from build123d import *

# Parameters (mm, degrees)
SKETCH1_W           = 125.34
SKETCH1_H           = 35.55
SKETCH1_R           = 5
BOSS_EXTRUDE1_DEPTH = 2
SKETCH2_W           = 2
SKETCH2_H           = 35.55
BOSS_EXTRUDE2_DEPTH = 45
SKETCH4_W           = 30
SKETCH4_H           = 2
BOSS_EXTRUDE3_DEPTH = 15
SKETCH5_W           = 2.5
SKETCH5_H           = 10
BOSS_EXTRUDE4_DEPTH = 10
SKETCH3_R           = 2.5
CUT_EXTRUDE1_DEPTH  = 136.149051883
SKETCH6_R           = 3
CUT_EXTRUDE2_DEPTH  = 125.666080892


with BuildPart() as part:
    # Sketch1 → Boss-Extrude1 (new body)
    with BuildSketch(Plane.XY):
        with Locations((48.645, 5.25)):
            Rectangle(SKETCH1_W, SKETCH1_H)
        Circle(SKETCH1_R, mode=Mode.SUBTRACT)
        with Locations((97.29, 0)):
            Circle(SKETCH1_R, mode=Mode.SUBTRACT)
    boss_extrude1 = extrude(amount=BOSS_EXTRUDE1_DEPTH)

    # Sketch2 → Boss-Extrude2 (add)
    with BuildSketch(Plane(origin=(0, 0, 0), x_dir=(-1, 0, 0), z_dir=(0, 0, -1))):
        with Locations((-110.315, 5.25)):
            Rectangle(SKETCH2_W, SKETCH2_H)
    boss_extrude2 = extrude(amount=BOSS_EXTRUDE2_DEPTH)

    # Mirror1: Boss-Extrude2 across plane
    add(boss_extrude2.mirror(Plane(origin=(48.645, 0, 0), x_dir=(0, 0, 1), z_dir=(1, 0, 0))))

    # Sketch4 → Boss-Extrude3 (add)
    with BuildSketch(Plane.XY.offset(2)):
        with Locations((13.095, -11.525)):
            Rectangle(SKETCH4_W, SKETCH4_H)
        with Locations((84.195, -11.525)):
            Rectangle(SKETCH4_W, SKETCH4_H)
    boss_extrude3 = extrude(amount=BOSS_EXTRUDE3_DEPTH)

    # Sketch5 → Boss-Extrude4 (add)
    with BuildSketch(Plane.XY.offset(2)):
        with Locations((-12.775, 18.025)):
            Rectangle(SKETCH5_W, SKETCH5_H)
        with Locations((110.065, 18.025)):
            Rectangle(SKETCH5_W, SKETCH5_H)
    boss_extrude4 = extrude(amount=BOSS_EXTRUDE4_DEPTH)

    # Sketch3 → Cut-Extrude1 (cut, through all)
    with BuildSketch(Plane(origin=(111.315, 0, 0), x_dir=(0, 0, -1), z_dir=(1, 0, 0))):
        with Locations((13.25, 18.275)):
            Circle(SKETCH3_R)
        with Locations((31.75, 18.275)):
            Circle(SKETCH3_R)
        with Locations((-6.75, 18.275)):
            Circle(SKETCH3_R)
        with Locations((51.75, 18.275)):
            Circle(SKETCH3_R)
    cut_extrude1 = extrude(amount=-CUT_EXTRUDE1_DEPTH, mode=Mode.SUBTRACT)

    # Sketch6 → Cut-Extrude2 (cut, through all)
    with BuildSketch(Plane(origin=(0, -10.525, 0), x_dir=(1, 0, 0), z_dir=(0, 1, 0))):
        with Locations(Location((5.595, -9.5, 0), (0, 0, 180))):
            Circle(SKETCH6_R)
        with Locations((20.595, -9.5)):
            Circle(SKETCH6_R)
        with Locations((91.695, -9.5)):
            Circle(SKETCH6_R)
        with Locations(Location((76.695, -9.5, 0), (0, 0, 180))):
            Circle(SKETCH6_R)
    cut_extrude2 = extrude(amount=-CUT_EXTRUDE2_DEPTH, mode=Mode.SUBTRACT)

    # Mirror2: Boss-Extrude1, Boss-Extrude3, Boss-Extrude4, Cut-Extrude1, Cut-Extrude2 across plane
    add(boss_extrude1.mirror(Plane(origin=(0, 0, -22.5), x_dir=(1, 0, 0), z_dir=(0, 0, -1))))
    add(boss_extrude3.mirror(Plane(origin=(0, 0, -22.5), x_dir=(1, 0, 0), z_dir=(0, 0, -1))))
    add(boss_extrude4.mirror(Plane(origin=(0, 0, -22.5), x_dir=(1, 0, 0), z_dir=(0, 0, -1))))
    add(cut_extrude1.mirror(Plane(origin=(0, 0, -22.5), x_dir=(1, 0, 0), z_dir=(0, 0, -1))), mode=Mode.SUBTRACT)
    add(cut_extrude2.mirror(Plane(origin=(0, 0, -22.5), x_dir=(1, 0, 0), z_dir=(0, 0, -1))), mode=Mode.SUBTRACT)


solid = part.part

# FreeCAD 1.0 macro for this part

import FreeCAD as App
import Part
import Sketcher
from FreeCAD import Vector
Q = App.Units.Quantity

doc = App.newDocument("Part")
params = doc.addObject("Spreadsheet::Sheet", "Params")
for row, (alias, value) in enumerate([
    ("sketch1_diameter", "10 mm"),
    ("sketch1_width", "125.34 mm"),
    ("sketch1_height", "35.55 mm"),
    ("pad1_length", "2 mm"),
    ("sketch2_width", "2 mm"),
    ("sketch2_height", "35.55 mm"),
    ("pad2_length", "45 mm"),
    ("sketch3_width", "30 mm"),
    ("sketch3_height", "2 mm"),
    ("pad3_length", "15 mm"),
    ("sketch4_height", "10 mm"),
    ("sketch4_width", "2.5 mm"),
    ("pad4_length", "10 mm"),
    ("sketch5_diameter", "5 mm"),
    ("sketch6_diameter", "6 mm"),
], start=1):
    params.set(f"A{row}", alias)
    params.set(f"B{row}", "=" + value)
    params.setAlias(f"B{row}", alias)

body = doc.addObject("PartDesign::Body", "Body")

# Sketch on XY plane
sketch1 = body.newObject("Sketcher::SketchObject", "Sketch")
sketch1.AttachmentSupport = (doc.getObject("XY_Plane"), [""])
sketch1.MapMode = "FlatFace"
sketch1.addGeometry(Part.LineSegment(Vector(-14, 23, 0), Vector(-14, -13, 0)), False)
sketch1.addGeometry(Part.LineSegment(Vector(-14, -13, 0), Vector(111, -13, 0)), False)
sketch1.addGeometry(Part.LineSegment(Vector(111, -13, 0), Vector(111, 23, 0)), False)
sketch1.addGeometry(Part.LineSegment(Vector(111, 23, 0), Vector(-14, 23, 0)), False)
sketch1.addGeometry(Part.Circle(Vector(0, 0, 0), Vector(0, 0, 1), 5), False)
sketch1.addGeometry(Part.Circle(Vector(97, 0, 0), Vector(0, 0, 1), 5), False)
sketch1.addConstraint(Sketcher.Constraint("Coincident", 0, 2, 1, 1))
sketch1.addConstraint(Sketcher.Constraint("Coincident", 1, 2, 2, 1))
sketch1.addConstraint(Sketcher.Constraint("Coincident", 2, 2, 3, 1))
sketch1.addConstraint(Sketcher.Constraint("Coincident", 3, 2, 0, 1))
sketch1.addConstraint(Sketcher.Constraint("Vertical", 0))
sketch1.addConstraint(Sketcher.Constraint("Horizontal", 1))
sketch1.addConstraint(Sketcher.Constraint("Vertical", 2))
sketch1.addConstraint(Sketcher.Constraint("Horizontal", 3))
sketch1.addConstraint(Sketcher.Constraint("Coincident", 4, 3, -1, 1))
sketch1.addConstraint(Sketcher.Constraint("Equal", 4, 5))
sketch1.addConstraint(Sketcher.Constraint("PointOnObject", 5, 3, -1))
sketch1.addConstraint(Sketcher.Constraint("Diameter", 4, Q("10 mm")))
sketch1.addConstraint(Sketcher.Constraint("DistanceX", 1, 1, 1, 2, Q("125.34 mm")))
sketch1.addConstraint(Sketcher.Constraint("DistanceY", 0, 2, 0, 1, Q("35.55 mm")))
sketch1.addConstraint(Sketcher.Constraint("DistanceX", -1, 1, 5, 3, Q("97.29 mm")))
sketch1.addConstraint(Sketcher.Constraint("DistanceX", 0, 2, -1, 1, Q("14.025 mm")))
sketch1.addConstraint(Sketcher.Constraint("DistanceY", 0, 2, -1, 1, Q("12.525 mm")))
sketch1.setExpression("Constraints[11]", "Params.sketch1_diameter")
sketch1.setExpression("Constraints[12]", "Params.sketch1_width")
sketch1.setExpression("Constraints[13]", "Params.sketch1_height")
pad1 = body.newObject("PartDesign::Pad", "Pad")
pad1.Profile = sketch1
pad1.setExpression("Length", "Params.pad1_length")

# Sketch on XY plane
sketch2 = body.newObject("Sketcher::SketchObject", "Sketch001")
sketch2.AttachmentSupport = (doc.getObject("XY_Plane"), [""])
sketch2.MapMode = "FlatFace"
sketch2.addGeometry(Part.LineSegment(Vector(111.3, 23, 0), Vector(111.3, -12.5, 0)), False)
sketch2.addGeometry(Part.LineSegment(Vector(111.3, -12.5, 0), Vector(109.3, -12.5, 0)), False)
sketch2.addGeometry(Part.LineSegment(Vector(109.3, -12.5, 0), Vector(109.3, 23, 0)), False)
sketch2.addGeometry(Part.LineSegment(Vector(109.3, 23, 0), Vector(111.3, 23, 0)), False)
sketch2.addConstraint(Sketcher.Constraint("Coincident", 0, 2, 1, 1))
sketch2.addConstraint(Sketcher.Constraint("Coincident", 1, 2, 2, 1))
sketch2.addConstraint(Sketcher.Constraint("Coincident", 2, 2, 3, 1))
sketch2.addConstraint(Sketcher.Constraint("Coincident", 3, 2, 0, 1))
sketch2.addConstraint(Sketcher.Constraint("Vertical", 0))
sketch2.addConstraint(Sketcher.Constraint("Horizontal", 1))
sketch2.addConstraint(Sketcher.Constraint("Vertical", 2))
sketch2.addConstraint(Sketcher.Constraint("Horizontal", 3))
sketch2.addConstraint(Sketcher.Constraint("DistanceX", 1, 2, 1, 1, Q("2 mm")))
sketch2.addConstraint(Sketcher.Constraint("DistanceY", 0, 2, 0, 1, Q("35.55 mm")))
sketch2.addConstraint(Sketcher.Constraint("DistanceX", -1, 1, 0, 2, Q("111.315 mm")))
sketch2.addConstraint(Sketcher.Constraint("DistanceY", 0, 2, -1, 1, Q("12.525 mm")))
sketch2.setExpression("Constraints[8]", "Params.sketch2_width")
sketch2.setExpression("Constraints[9]", "Params.sketch2_height")
pad2 = body.newObject("PartDesign::Pad", "Pad001")
pad2.Profile = sketch2
pad2.setExpression("Length", "Params.pad2_length")
pad2.Reversed = True
doc.recompute()

datumplane = body.newObject("PartDesign::Plane", "DatumPlane")
datumplane.AttachmentSupport = (doc.getObject("YZ_Plane"), [""])
datumplane.MapMode = "FlatFace"
datumplane.AttachmentOffset = App.Placement(Vector(0, 0, 48.645), App.Rotation())
mirrored = body.newObject("PartDesign::Mirrored", "Mirrored")
mirrored.Originals = [pad2]
mirrored.MirrorPlane = (datumplane, [""])
body.Tip = mirrored

# Sketch on XY plane
sketch3 = body.newObject("Sketcher::SketchObject", "Sketch002")
sketch3.AttachmentSupport = (doc.getObject("XY_Plane"), [""])
sketch3.MapMode = "FlatFace"
sketch3.AttachmentOffset = App.Placement(Vector(0, 0, 2), App.Rotation())
sketch3.addGeometry(Part.LineSegment(Vector(-1.9, -10.5, 0), Vector(-1.9, -12.5, 0)), False)
sketch3.addGeometry(Part.LineSegment(Vector(-1.9, -12.5, 0), Vector(28.1, -12.5, 0)), False)
sketch3.addGeometry(Part.LineSegment(Vector(28.1, -12.5, 0), Vector(28.1, -10.5, 0)), False)
sketch3.addGeometry(Part.LineSegment(Vector(28.1, -10.5, 0), Vector(-1.9, -10.5, 0)), False)
sketch3.addGeometry(Part.LineSegment(Vector(69.2, -10.5, 0), Vector(69.2, -12.5, 0)), False)
sketch3.addGeometry(Part.LineSegment(Vector(69.2, -12.5, 0), Vector(99.2, -12.5, 0)), False)
sketch3.addGeometry(Part.LineSegment(Vector(99.2, -12.5, 0), Vector(99.2, -10.5, 0)), False)
sketch3.addGeometry(Part.LineSegment(Vector(99.2, -10.5, 0), Vector(69.2, -10.5, 0)), False)
sketch3.addConstraint(Sketcher.Constraint("Coincident", 0, 2, 1, 1))
sketch3.addConstraint(Sketcher.Constraint("Coincident", 1, 2, 2, 1))
sketch3.addConstraint(Sketcher.Constraint("Coincident", 2, 2, 3, 1))
sketch3.addConstraint(Sketcher.Constraint("Coincident", 3, 2, 0, 1))
sketch3.addConstraint(Sketcher.Constraint("Coincident", 4, 2, 5, 1))
sketch3.addConstraint(Sketcher.Constraint("Coincident", 5, 2, 6, 1))
sketch3.addConstraint(Sketcher.Constraint("Coincident", 6, 2, 7, 1))
sketch3.addConstraint(Sketcher.Constraint("Coincident", 7, 2, 4, 1))
sketch3.addConstraint(Sketcher.Constraint("Vertical", 0))
sketch3.addConstraint(Sketcher.Constraint("Horizontal", 1))
sketch3.addConstraint(Sketcher.Constraint("Vertical", 2))
sketch3.addConstraint(Sketcher.Constraint("Horizontal", 3))
sketch3.addConstraint(Sketcher.Constraint("Vertical", 4))
sketch3.addConstraint(Sketcher.Constraint("Horizontal", 5))
sketch3.addConstraint(Sketcher.Constraint("Vertical", 6))
sketch3.addConstraint(Sketcher.Constraint("Horizontal", 7))
sketch3.addConstraint(Sketcher.Constraint("Horizontal", 1, 2, 4, 2))
sketch3.addConstraint(Sketcher.Constraint("Horizontal", 3, 2, 6, 2))
sketch3.addConstraint(Sketcher.Constraint("Equal", 3, 5))
sketch3.addConstraint(Sketcher.Constraint("DistanceX", 1, 1, 1, 2, Q("30 mm")))
sketch3.addConstraint(Sketcher.Constraint("DistanceY", 0, 2, 0, 1, Q("2 mm")))
sketch3.addConstraint(Sketcher.Constraint("DistanceX", 1, 2, 4, 2, Q("41.1 mm")))
sketch3.addConstraint(Sketcher.Constraint("DistanceX", 0, 2, -1, 1, Q("1.905 mm")))
sketch3.addConstraint(Sketcher.Constraint("DistanceY", 0, 2, -1, 1, Q("12.525 mm")))
sketch3.setExpression("Constraints[19]", "Params.sketch3_width")
sketch3.setExpression("Constraints[20]", "Params.sketch3_height")
pad3 = body.newObject("PartDesign::Pad", "Pad002")
pad3.Profile = sketch3
pad3.setExpression("Length", "Params.pad3_length")

# Sketch on XY plane
sketch4 = body.newObject("Sketcher::SketchObject", "Sketch003")
sketch4.AttachmentSupport = (doc.getObject("XY_Plane"), [""])
sketch4.MapMode = "FlatFace"
sketch4.AttachmentOffset = App.Placement(Vector(0, 0, 2), App.Rotation())
sketch4.addGeometry(Part.LineSegment(Vector(-14, 23, 0), Vector(-14, 13, 0)), False)
sketch4.addGeometry(Part.LineSegment(Vector(-14, 13, 0), Vector(-11.5, 13, 0)), False)
sketch4.addGeometry(Part.LineSegment(Vector(-11.5, 13, 0), Vector(-11.5, 23, 0)), False)
sketch4.addGeometry(Part.LineSegment(Vector(-11.5, 23, 0), Vector(-14, 23, 0)), False)
sketch4.addGeometry(Part.LineSegment(Vector(108.8, 23, 0), Vector(108.8, 13, 0)), False)
sketch4.addGeometry(Part.LineSegment(Vector(108.8, 13, 0), Vector(111.3, 13, 0)), False)
sketch4.addGeometry(Part.LineSegment(Vector(111.3, 13, 0), Vector(111.3, 23, 0)), False)
sketch4.addGeometry(Part.LineSegment(Vector(111.3, 23, 0), Vector(108.8, 23, 0)), False)
sketch4.addConstraint(Sketcher.Constraint("Coincident", 0, 2, 1, 1))
sketch4.addConstraint(Sketcher.Constraint("Coincident", 1, 2, 2, 1))
sketch4.addConstraint(Sketcher.Constraint("Coincident", 2, 2, 3, 1))
sketch4.addConstraint(Sketcher.Constraint("Coincident", 3, 2, 0, 1))
sketch4.addConstraint(Sketcher.Constraint("Coincident", 4, 2, 5, 1))
sketch4.addConstraint(Sketcher.Constraint("Coincident", 5, 2, 6, 1))
sketch4.addConstraint(Sketcher.Constraint("Coincident", 6, 2, 7, 1))
sketch4.addConstraint(Sketcher.Constraint("Coincident", 7, 2, 4, 1))
sketch4.addConstraint(Sketcher.Constraint("Vertical", 0))
sketch4.addConstraint(Sketcher.Constraint("Horizontal", 1))
sketch4.addConstraint(Sketcher.Constraint("Vertical", 2))
sketch4.addConstraint(Sketcher.Constraint("Horizontal", 3))
sketch4.addConstraint(Sketcher.Constraint("Vertical", 4))
sketch4.addConstraint(Sketcher.Constraint("Horizontal", 5))
sketch4.addConstraint(Sketcher.Constraint("Vertical", 6))
sketch4.addConstraint(Sketcher.Constraint("Horizontal", 7))
sketch4.addConstraint(Sketcher.Constraint("Horizontal", 1, 2, 4, 2))
sketch4.addConstraint(Sketcher.Constraint("Horizontal", 3, 2, 6, 2))
sketch4.addConstraint(Sketcher.Constraint("Equal", 3, 5))
sketch4.addConstraint(Sketcher.Constraint("DistanceY", 0, 2, 0, 1, Q("10 mm")))
sketch4.addConstraint(Sketcher.Constraint("DistanceX", 1, 1, 1, 2, Q("2.5 mm")))
sketch4.addConstraint(Sketcher.Constraint("DistanceX", 1, 2, 4, 2, Q("120.34 mm")))
sketch4.addConstraint(Sketcher.Constraint("DistanceX", 0, 2, -1, 1, Q("14.025 mm")))
sketch4.addConstraint(Sketcher.Constraint("DistanceY", -1, 1, 0, 2, Q("13.025 mm")))
sketch4.setExpression("Constraints[19]", "Params.sketch4_height")
sketch4.setExpression("Constraints[20]", "Params.sketch4_width")
pad4 = body.newObject("PartDesign::Pad", "Pad003")
pad4.Profile = sketch4
pad4.setExpression("Length", "Params.pad4_length")

# Sketch on YZ plane
sketch5 = body.newObject("Sketcher::SketchObject", "Sketch004")
sketch5.AttachmentSupport = (doc.getObject("YZ_Plane"), [""])
sketch5.MapMode = "FlatFace"
sketch5.AttachmentOffset = App.Placement(Vector(0, 0, 111.315), App.Rotation())
sketch5.addGeometry(Part.Circle(Vector(18.3, -13.2, 0), Vector(0, 0, 1), 2.5), False)
sketch5.addGeometry(Part.Circle(Vector(18.3, -31.8, 0), Vector(0, 0, 1), 2.5), False)
sketch5.addGeometry(Part.Circle(Vector(18.3, 6.8, 0), Vector(0, 0, 1), 2.5), False)
sketch5.addGeometry(Part.Circle(Vector(18.3, -51.8, 0), Vector(0, 0, 1), 2.5), False)
sketch5.addConstraint(Sketcher.Constraint("Equal", 0, 1))
sketch5.addConstraint(Sketcher.Constraint("Equal", 1, 2))
sketch5.addConstraint(Sketcher.Constraint("Equal", 2, 3))
sketch5.addConstraint(Sketcher.Constraint("Vertical", 0, 3, 1, 3))
sketch5.addConstraint(Sketcher.Constraint("Vertical", 1, 3, 2, 3))
sketch5.addConstraint(Sketcher.Constraint("Vertical", 2, 3, 3, 3))
sketch5.addConstraint(Sketcher.Constraint("Diameter", 0, Q("5 mm")))
sketch5.addConstraint(Sketcher.Constraint("DistanceY", 0, 3, 2, 3, Q("20 mm")))
sketch5.addConstraint(Sketcher.Constraint("DistanceY", 3, 3, 1, 3, Q("20 mm")))
sketch5.addConstraint(Sketcher.Constraint("DistanceY", 1, 3, 0, 3, Q("18.5 mm")))
sketch5.addConstraint(Sketcher.Constraint("DistanceY", 0, 3, -1, 1, Q("13.25 mm")))
sketch5.addConstraint(Sketcher.Constraint("DistanceX", -1, 1, 0, 3, Q("18.275 mm")))
sketch5.setExpression("Constraints[6]", "Params.sketch5_diameter")
pocket1 = body.newObject("PartDesign::Pocket", "Pocket")
pocket1.Profile = sketch5
pocket1.Type = "ThroughAll"

# Sketch on XZ plane
sketch6 = body.newObject("Sketcher::SketchObject", "Sketch005")
sketch6.AttachmentSupport = (doc.getObject("XZ_Plane"), [""])
sketch6.MapMode = "FlatFace"
sketch6.AttachmentOffset = App.Placement(Vector(0, 0, 10.525), App.Rotation())
sketch6.addGeometry(Part.Circle(Vector(5.6, 9.5, 0), Vector(0, 0, 1), 3), False)
sketch6.addGeometry(Part.Circle(Vector(20.6, 9.5, 0), Vector(0, 0, 1), 3), False)
sketch6.addGeometry(Part.Circle(Vector(91.7, 9.5, 0), Vector(0, 0, 1), 3), False)
sketch6.addGeometry(Part.Circle(Vector(76.7, 9.5, 0), Vector(0, 0, 1), 3), False)
sketch6.addConstraint(Sketcher.Constraint("Equal", 0, 1))
sketch6.addConstraint(Sketcher.Constraint("Equal", 1, 2))
sketch6.addConstraint(Sketcher.Constraint("Equal", 2, 3))
sketch6.addConstraint(Sketcher.Constraint("Horizontal", 0, 3, 1, 3))
sketch6.addConstraint(Sketcher.Constraint("Horizontal", 1, 3, 2, 3))
sketch6.addConstraint(Sketcher.Constraint("Horizontal", 2, 3, 3, 3))
sketch6.addConstraint(Sketcher.Constraint("Diameter", 0, Q("6 mm")))
sketch6.addConstraint(Sketcher.Constraint("DistanceX", 0, 3, 1, 3, Q("15 mm")))
sketch6.addConstraint(Sketcher.Constraint("DistanceX", 3, 3, 2, 3, Q("15 mm")))
sketch6.addConstraint(Sketcher.Constraint("DistanceY", -1, 1, 0, 3, Q("9.5 mm")))
sketch6.addConstraint(Sketcher.Constraint("DistanceX", 1, 3, 2, 3, Q("71.1 mm")))
sketch6.addConstraint(Sketcher.Constraint("DistanceX", -1, 1, 0, 3, Q("5.595 mm")))
sketch6.setExpression("Constraints[6]", "Params.sketch6_diameter")
pocket2 = body.newObject("PartDesign::Pocket", "Pocket001")
pocket2.Profile = sketch6
pocket2.Type = "ThroughAll"
pocket2.Reversed = True
doc.recompute()

datumplane2 = body.newObject("PartDesign::Plane", "DatumPlane001")
datumplane2.AttachmentSupport = (doc.getObject("XY_Plane"), [""])
datumplane2.MapMode = "FlatFace"
datumplane2.AttachmentOffset = App.Placement(Vector(0, 0, -22.5), App.Rotation())
mirrored2 = body.newObject("PartDesign::Mirrored", "Mirrored001")
mirrored2.Originals = [pad1, pad3, pad4, pocket1, pocket2]
mirrored2.MirrorPlane = (datumplane2, [""])
body.Tip = mirrored2

doc.recompute()
